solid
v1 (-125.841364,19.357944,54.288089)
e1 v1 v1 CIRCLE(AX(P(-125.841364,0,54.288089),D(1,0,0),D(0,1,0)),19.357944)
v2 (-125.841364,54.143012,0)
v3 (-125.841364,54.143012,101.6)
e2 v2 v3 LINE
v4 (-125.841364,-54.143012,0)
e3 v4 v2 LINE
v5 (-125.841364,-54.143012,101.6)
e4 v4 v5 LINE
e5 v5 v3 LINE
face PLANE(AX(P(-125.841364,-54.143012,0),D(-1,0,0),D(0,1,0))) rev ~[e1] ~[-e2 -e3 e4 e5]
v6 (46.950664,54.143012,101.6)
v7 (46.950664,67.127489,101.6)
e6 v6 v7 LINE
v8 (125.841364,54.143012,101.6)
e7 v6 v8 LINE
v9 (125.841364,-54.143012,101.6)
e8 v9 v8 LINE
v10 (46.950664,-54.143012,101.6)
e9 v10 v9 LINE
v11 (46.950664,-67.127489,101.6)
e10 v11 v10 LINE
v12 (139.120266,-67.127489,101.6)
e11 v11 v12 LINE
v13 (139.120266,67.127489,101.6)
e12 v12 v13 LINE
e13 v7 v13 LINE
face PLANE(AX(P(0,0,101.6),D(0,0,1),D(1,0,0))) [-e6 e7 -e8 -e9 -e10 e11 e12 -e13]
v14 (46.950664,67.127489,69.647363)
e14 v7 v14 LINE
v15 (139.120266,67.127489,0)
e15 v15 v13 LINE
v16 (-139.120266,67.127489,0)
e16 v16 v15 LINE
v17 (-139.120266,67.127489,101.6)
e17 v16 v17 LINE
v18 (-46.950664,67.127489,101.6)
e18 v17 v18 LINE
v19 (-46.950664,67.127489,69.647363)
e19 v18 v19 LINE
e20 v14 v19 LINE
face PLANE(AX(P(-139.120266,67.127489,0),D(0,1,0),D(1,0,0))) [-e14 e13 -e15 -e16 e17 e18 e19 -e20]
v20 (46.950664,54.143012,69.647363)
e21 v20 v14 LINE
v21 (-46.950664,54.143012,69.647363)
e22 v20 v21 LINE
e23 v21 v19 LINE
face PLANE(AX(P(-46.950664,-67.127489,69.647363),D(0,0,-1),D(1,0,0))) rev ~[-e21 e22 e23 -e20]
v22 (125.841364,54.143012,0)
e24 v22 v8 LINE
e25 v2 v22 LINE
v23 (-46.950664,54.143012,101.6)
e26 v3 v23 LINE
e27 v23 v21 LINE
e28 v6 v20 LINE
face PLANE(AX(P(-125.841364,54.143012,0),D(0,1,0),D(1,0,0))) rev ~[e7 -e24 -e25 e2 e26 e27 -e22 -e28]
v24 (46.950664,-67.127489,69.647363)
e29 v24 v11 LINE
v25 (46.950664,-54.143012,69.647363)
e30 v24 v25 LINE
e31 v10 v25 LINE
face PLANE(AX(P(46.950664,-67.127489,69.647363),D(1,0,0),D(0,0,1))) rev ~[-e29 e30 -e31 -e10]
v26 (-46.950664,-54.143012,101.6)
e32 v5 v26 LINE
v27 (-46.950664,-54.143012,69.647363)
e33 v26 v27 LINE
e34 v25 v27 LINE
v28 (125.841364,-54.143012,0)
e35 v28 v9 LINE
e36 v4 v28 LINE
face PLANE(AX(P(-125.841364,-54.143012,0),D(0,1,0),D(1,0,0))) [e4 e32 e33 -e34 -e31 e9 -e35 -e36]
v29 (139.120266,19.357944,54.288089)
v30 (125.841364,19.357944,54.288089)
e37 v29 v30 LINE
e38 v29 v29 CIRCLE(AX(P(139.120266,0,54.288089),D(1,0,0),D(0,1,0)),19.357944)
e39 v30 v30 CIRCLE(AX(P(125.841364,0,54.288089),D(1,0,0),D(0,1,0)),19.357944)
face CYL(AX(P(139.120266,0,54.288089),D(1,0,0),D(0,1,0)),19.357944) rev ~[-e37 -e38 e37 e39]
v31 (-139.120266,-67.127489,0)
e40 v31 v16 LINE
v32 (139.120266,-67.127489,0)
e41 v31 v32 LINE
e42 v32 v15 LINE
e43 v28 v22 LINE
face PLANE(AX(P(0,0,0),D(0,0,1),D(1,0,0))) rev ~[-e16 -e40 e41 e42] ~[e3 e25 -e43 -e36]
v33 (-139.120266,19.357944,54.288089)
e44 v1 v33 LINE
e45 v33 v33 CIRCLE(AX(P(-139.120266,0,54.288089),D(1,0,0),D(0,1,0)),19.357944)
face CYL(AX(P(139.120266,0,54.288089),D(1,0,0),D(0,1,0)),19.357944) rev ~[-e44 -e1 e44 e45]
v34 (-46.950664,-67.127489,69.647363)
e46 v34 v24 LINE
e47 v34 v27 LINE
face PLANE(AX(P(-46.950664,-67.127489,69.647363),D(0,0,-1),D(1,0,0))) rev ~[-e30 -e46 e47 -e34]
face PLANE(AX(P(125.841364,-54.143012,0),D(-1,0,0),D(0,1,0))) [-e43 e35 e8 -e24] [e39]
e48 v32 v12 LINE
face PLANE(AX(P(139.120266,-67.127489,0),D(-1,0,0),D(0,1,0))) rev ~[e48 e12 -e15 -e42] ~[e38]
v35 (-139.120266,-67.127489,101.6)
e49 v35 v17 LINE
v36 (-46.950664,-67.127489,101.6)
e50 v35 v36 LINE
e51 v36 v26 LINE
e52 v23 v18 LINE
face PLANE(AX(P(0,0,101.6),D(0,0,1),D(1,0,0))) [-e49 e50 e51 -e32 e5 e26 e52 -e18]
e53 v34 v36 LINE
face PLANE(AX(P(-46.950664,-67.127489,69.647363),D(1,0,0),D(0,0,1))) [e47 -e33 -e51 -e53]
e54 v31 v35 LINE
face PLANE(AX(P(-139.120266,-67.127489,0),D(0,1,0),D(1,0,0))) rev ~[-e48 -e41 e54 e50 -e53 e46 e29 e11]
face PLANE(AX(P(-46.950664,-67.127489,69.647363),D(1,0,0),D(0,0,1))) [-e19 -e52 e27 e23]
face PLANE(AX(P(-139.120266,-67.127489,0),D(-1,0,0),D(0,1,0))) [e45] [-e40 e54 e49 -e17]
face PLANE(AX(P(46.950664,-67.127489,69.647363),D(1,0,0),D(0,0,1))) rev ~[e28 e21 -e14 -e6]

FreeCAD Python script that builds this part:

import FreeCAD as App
import Part
import Sketcher

V = App.Vector
Q = App.Units.Quantity


def add_polygon(sketch, points):
    """Adds a closed chain of lines whose ends are joined by coincident constraints."""
    first, n = sketch.GeometryCount, len(points)
    for a, b in zip(points, points[1:] + points[:1]):
        sketch.addGeometry(Part.LineSegment(App.Vector(*a, 0), App.Vector(*b, 0)), False)
    for i in range(n):
        sketch.addConstraint(Sketcher.Constraint("Coincident", first + i, 2, first + (i + 1) % n, 1))

doc = App.newDocument("Part")
body = doc.addObject("PartDesign::Body", "Body")

sketch1 = body.newObject("Sketcher::SketchObject", "Sketch")
sketch1.AttachmentSupport = (doc.getObject("XY_Plane"), [""])
sketch1.MapMode = "FlatFace"
add_polygon(sketch1, [(-139, 67), (-139, -67), (139, -67), (139, 67)])
add_polygon(sketch1, [(126, -54), (-126, -54), (-126, 54), (126, 54)])
sketch1.addConstraint(Sketcher.Constraint("Vertical", 0))
sketch1.addConstraint(Sketcher.Constraint("Horizontal", 1))
sketch1.addConstraint(Sketcher.Constraint("Vertical", 2))
sketch1.addConstraint(Sketcher.Constraint("Horizontal", 3))
sketch1.addConstraint(Sketcher.Constraint("Horizontal", 4))
sketch1.addConstraint(Sketcher.Constraint("Vertical", 5))
sketch1.addConstraint(Sketcher.Constraint("Horizontal", 6))
sketch1.addConstraint(Sketcher.Constraint("Vertical", 7))
sketch1.addConstraint(Sketcher.Constraint("Symmetric", 0, 2, 2, 2, -1, 1))
sketch1.addConstraint(Sketcher.Constraint("Symmetric", 4, 2, 6, 2, -1, 1))
sketch1.addConstraint(Sketcher.Constraint("DistanceY", 0, 2, 4, 2, Q("0.5111999 in")))
sketch1.addConstraint(Sketcher.Constraint("DistanceX", 1, 1, 1, 2, Q("278.240532 mm")))
sketch1.addConstraint(Sketcher.Constraint("DistanceX", 4, 2, 4, 1, Q("251.682728 mm")))
sketch1.addConstraint(Sketcher.Constraint("DistanceY", 0, 2, 0, 1, Q("134.254978 mm")))
pad1 = body.newObject("PartDesign::Pad", "Pad")
pad1.Profile = sketch1
pad1.Length = Q("4 in")

sketch2 = body.newObject("Sketcher::SketchObject", "Sketch001")
sketch2.AttachmentSupport = (doc.getObject("YZ_Plane"), [""])
sketch2.MapMode = "FlatFace"
sketch2.AttachmentOffset = App.Placement(V(0, 0, 139.120266), App.Rotation())
sketch2.addGeometry(Part.Circle(V(0, 54, 0), V(0, 0, 1), 19), False)
sketch2.addConstraint(Sketcher.Constraint("PointOnObject", 0, 3, -2))
sketch2.addConstraint(Sketcher.Constraint("Diameter", 0, Q("38.715888 mm")))
sketch2.addConstraint(Sketcher.Constraint("DistanceY", -1, 1, 0, 3, Q("54.288089 mm")))
pocket1 = body.newObject("PartDesign::Pocket", "Pocket")
pocket1.Profile = sketch2
pocket1.Type = "ThroughAll"

sketch3 = body.newObject("Sketcher::SketchObject", "Sketch002")
sketch3.AttachmentSupport = (doc.getObject("XZ_Plane"), [""])
sketch3.MapMode = "FlatFace"
sketch3.AttachmentOffset = App.Placement(V(0, 0, 67.127489), App.Rotation())
add_polygon(sketch3, [(-47, 102), (-47, 70), (47, 70), (47, 102)])
sketch3.addConstraint(Sketcher.Constraint("Vertical", 0))
sketch3.addConstraint(Sketcher.Constraint("Horizontal", 1))
sketch3.addConstraint(Sketcher.Constraint("Vertical", 2))
sketch3.addConstraint(Sketcher.Constraint("Horizontal", 3))
sketch3.addConstraint(Sketcher.Constraint("DistanceY", -1, 1, 2, 2, Q("4 in")))
sketch3.addConstraint(Sketcher.Constraint("DistanceX", 1, 1, 1, 2, Q("93.901328 mm")))
sketch3.addConstraint(Sketcher.Constraint("DistanceY", 0, 2, 0, 1, Q("31.952637 mm")))
sketch3.addConstraint(Sketcher.Constraint("DistanceX", 0, 2, -1, 1, Q("46.950664 mm")))
pocket2 = body.newObject("PartDesign::Pocket", "Pocket001")
pocket2.Profile = sketch3
pocket2.Type = "ThroughAll"

doc.recompute()
